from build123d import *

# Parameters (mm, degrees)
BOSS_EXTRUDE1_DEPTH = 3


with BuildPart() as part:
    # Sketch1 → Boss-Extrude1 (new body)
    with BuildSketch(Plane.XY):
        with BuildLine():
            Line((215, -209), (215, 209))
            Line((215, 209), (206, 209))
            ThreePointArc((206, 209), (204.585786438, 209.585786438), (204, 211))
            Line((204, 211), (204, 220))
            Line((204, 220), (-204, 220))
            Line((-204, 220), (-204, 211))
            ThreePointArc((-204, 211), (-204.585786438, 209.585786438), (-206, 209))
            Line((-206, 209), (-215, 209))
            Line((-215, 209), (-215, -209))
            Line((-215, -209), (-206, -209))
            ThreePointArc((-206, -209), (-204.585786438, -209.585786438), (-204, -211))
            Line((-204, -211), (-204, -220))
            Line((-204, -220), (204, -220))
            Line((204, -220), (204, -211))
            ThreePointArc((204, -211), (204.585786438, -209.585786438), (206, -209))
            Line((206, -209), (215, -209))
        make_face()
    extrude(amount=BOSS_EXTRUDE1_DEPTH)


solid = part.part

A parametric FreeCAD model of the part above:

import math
import FreeCAD as App
import Part
import Sketcher
Q = App.Units.Quantity

doc = App.newDocument("Part")
body = doc.addObject("PartDesign::Body", "Body")

sketch1 = body.newObject("Sketcher::SketchObject", "Sketch")
sketch1.AttachmentSupport = (doc.getObject("XY_Plane"), [""])
sketch1.MapMode = "FlatFace"
sketch1.addGeometry([
    Part.LineSegment(App.Vector(215, -209, 0), App.Vector(215, 209, 0)),
    Part.LineSegment(App.Vector(215, 209, 0), App.Vector(206, 209, 0)),
    Part.ArcOfCircle(Part.Circle(App.Vector(206, 211, 0), App.Vector(0, 0, 1), 2), math.radians(-180), math.radians(-90)),
    Part.LineSegment(App.Vector(204, 211, 0), App.Vector(204, 220, 0)),
    Part.LineSegment(App.Vector(204, 220, 0), App.Vector(-204, 220, 0)),
    Part.LineSegment(App.Vector(-204, 220, 0), App.Vector(-204, 211, 0)),
    Part.ArcOfCircle(Part.Circle(App.Vector(-206, 211, 0), App.Vector(0, 0, 1), 2), math.radians(-90), math.radians(0)),
    Part.LineSegment(App.Vector(-206, 209, 0), App.Vector(-215, 209, 0)),
    Part.LineSegment(App.Vector(-215, 209, 0), App.Vector(-215, -209, 0)),
    Part.LineSegment(App.Vector(-215, -209, 0), App.Vector(-206, -209, 0)),
    Part.ArcOfCircle(Part.Circle(App.Vector(-206, -211, 0), App.Vector(0, 0, 1), 2), math.radians(0), math.radians(90)),
    Part.LineSegment(App.Vector(-204, -211, 0), App.Vector(-204, -220, 0)),
    Part.LineSegment(App.Vector(-204, -220, 0), App.Vector(204, -220, 0)),
    Part.LineSegment(App.Vector(204, -220, 0), App.Vector(204, -211, 0)),
    Part.ArcOfCircle(Part.Circle(App.Vector(206, -211, 0), App.Vector(0, 0, 1), 2), math.radians(90), math.radians(180)),
    Part.LineSegment(App.Vector(206, -209, 0), App.Vector(215, -209, 0)),
], False)
sketch1.addConstraint([
    Sketcher.Constraint("Coincident", 0, 2, 1, 1),
    Sketcher.Constraint("Tangent", 1, 2, 2, 2),
    Sketcher.Constraint("Tangent", 2, 1, 3, 1),
    Sketcher.Constraint("Coincident", 3, 2, 4, 1),
    Sketcher.Constraint("Coincident", 4, 2, 5, 1),
    Sketcher.Constraint("Tangent", 5, 2, 6, 2),
    Sketcher.Constraint("Tangent", 6, 1, 7, 1),
    Sketcher.Constraint("Coincident", 7, 2, 8, 1),
    Sketcher.Constraint("Coincident", 8, 2, 9, 1),
    Sketcher.Constraint("Tangent", 9, 2, 10, 2),
    Sketcher.Constraint("Tangent", 10, 1, 11, 1),
    Sketcher.Constraint("Coincident", 11, 2, 12, 1),
    Sketcher.Constraint("Coincident", 12, 2, 13, 1),
    Sketcher.Constraint("Tangent", 13, 2, 14, 2),
    Sketcher.Constraint("Tangent", 14, 1, 15, 1),
    Sketcher.Constraint("Coincident", 15, 2, 0, 1),
    Sketcher.Constraint("Vertical", 0),
    Sketcher.Constraint("Horizontal", 1),
    Sketcher.Constraint("Vertical", 3),
    Sketcher.Constraint("Horizontal", 4),
    Sketcher.Constraint("Vertical", 5),
    Sketcher.Constraint("Horizontal", 7),
    Sketcher.Constraint("Vertical", 8),
    Sketcher.Constraint("Horizontal", 9),
    Sketcher.Constraint("Vertical", 11),
    Sketcher.Constraint("Horizontal", 12),
    Sketcher.Constraint("Vertical", 13),
    Sketcher.Constraint("Horizontal", 15),
    Sketcher.Constraint("Equal", 2, 6),
    Sketcher.Constraint("Equal", 6, 10),
    Sketcher.Constraint("Equal", 10, 14),
    Sketcher.Constraint("Symmetric", 2, 3, 10, 3, -1, 1),
    Sketcher.Constraint("Symmetric", 6, 3, 14, 3, -1, 1),
    Sketcher.Constraint("Symmetric", 2, 3, 6, 3, -2),
    Sketcher.Constraint("Equal", 1, 7),
    Sketcher.Constraint("Equal", 15, 3),
    Sketcher.Constraint("Equal", 5, 11),
    Sketcher.Constraint("Radius", 2, Q("2 mm")),
    Sketcher.Constraint("DistanceX", 1, 2, 1, 1, Q("9 mm")),
    Sketcher.Constraint("DistanceX", 4, 2, 4, 1, Q("408 mm")),
    Sketcher.Constraint("DistanceY", 0, 1, 0, 2, Q("418 mm")),
])
pad1 = body.newObject("PartDesign::Pad", "Pad")
pad1.Profile = sketch1
pad1.Length = 3

doc.recompute()
